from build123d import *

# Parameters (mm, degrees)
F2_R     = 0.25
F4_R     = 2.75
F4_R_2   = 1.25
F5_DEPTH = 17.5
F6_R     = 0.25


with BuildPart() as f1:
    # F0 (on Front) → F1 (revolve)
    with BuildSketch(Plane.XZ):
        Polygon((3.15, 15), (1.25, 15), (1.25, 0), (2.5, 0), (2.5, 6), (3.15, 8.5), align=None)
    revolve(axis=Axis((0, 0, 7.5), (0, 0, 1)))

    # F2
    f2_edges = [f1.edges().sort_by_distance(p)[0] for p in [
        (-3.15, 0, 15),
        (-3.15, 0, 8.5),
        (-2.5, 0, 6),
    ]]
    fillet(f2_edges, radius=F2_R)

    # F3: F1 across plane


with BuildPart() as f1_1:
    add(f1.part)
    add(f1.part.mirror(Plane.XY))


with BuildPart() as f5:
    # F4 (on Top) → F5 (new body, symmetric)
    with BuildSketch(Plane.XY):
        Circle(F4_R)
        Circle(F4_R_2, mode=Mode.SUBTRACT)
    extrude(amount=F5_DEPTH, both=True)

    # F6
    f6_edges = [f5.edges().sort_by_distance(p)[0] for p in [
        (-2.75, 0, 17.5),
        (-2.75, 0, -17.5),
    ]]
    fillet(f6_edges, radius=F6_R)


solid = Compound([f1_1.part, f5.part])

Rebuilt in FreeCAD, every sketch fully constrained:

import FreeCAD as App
import Part
import Sketcher

V = App.Vector


def edges_at(feature, points):
    """Names of the edges that pass closest to the given points."""
    edges = feature.Shape.Edges
    near = lambda p: min(range(len(edges)), key=lambda i: edges[i].distToShape(Part.Vertex(*p))[0])
    return sorted({f"Edge{near(p) + 1}" for p in points})

doc = App.newDocument("Part")
body = doc.addObject("PartDesign::Body", "Body")

sketch1 = body.newObject("Sketcher::SketchObject", "Sketch")
sketch1.AttachmentSupport = (doc.getObject("XZ_Plane"), [""])
sketch1.MapMode = "FlatFace"
sketch1.addGeometry([
    Part.LineSegment(V(3.1, 15, 0), V(1.2, 15, 0)),
    Part.LineSegment(V(1.2, 15, 0), V(1.2, 0, 0)),
    Part.LineSegment(V(1.2, 0, 0), V(2.5, 0, 0)),
    Part.LineSegment(V(2.5, 0, 0), V(2.5, 6, 0)),
    Part.LineSegment(V(2.5, 6, 0), V(3.1, 8.5, 0)),
    Part.LineSegment(V(3.1, 8.5, 0), V(3.1, 15, 0)),
], False)
sketch1.addConstraint([
    Sketcher.Constraint("Coincident", 0, 2, 1, 1),
    Sketcher.Constraint("Coincident", 1, 2, 2, 1),
    Sketcher.Constraint("Coincident", 2, 2, 3, 1),
    Sketcher.Constraint("Coincident", 3, 2, 4, 1),
    Sketcher.Constraint("Coincident", 4, 2, 5, 1),
    Sketcher.Constraint("Coincident", 5, 2, 0, 1),
    Sketcher.Constraint("Horizontal", 0),
    Sketcher.Constraint("Vertical", 1),
    Sketcher.Constraint("Horizontal", 2),
    Sketcher.Constraint("Vertical", 3),
    Sketcher.Constraint("Vertical", 5),
    Sketcher.Constraint("PointOnObject", 1, 2, -1),
    Sketcher.Constraint("DistanceY", 1, 2, 1, 1, 15.0),
    Sketcher.Constraint("DistanceY", 3, 1, 3, 2, 6.0),
    Sketcher.Constraint("DistanceX", 0, 2, 0, 1, 1.9),
    Sketcher.Constraint("DistanceY", 5, 1, 5, 2, 6.5),
    Sketcher.Constraint("DistanceX", 2, 1, 2, 2, 1.25),
    Sketcher.Constraint("DistanceX", -1, 1, 2, 2, 2.5),
])
revolution = body.newObject("PartDesign::Revolution", "Revolution")
revolution.Profile = sketch1
revolution.ReferenceAxis = (sketch1, ["V_Axis"])
revolution.Angle = 360
doc.recompute()

fillet = body.newObject("PartDesign::Fillet", "Fillet")
fillet.Base = (revolution, edges_at(revolution, [(-3.15, 0, 15), (-3.15, 0, 8.5), (-2.5, 0, 6)]))
fillet.Radius = 0.25
body2 = doc.addObject("PartDesign::Body", "Body001")
doc.recompute()

body2.BaseFeature = body
doc.recompute()

mirroring = doc.addObject("Part::Mirroring", "Mirroring")
mirroring.Source = body
mirroring.Base = V(0, 0, 0)
mirroring.Normal = V(0, 0, 1)
body3 = doc.addObject("PartDesign::Body", "Body002")
body3.BaseFeature = mirroring
boolean = body2.newObject("PartDesign::Boolean", "Boolean")
boolean.Type = "Fuse"
boolean.addObjects([body3])
doc.recompute()
body4 = doc.addObject("PartDesign::Body", "Body003")

sketch2 = body4.newObject("Sketcher::SketchObject", "Sketch001")
sketch2.AttachmentSupport = (doc.getObject("XY_Plane003"), [""])
sketch2.MapMode = "FlatFace"
sketch2.addGeometry([
    Part.Circle(V(0, 0, 0), V(0, 0, 1), 2.8),
    Part.Circle(V(0, 0, 0), V(0, 0, 1), 1.2),
], False)
sketch2.addConstraint([
    Sketcher.Constraint("Coincident", 0, 3, -1, 1),
    Sketcher.Constraint("Coincident", 1, 3, -1, 1),
    Sketcher.Constraint("Diameter", 0, 5.5),
    Sketcher.Constraint("Diameter", 1, 2.5),
])
pad1 = body4.newObject("PartDesign::Pad", "Pad")
pad1.Profile = sketch2
pad1.Length = 35
pad1.Midplane = True
doc.recompute()

fillet2 = body4.newObject("PartDesign::Fillet", "Fillet001")
fillet2.Base = (pad1, edges_at(pad1, [(-2.75, 0, 17.5), (-2.75, 0, -17.5)]))
fillet2.Radius = 0.25
mirroring.Visibility = False

doc.recompute()
